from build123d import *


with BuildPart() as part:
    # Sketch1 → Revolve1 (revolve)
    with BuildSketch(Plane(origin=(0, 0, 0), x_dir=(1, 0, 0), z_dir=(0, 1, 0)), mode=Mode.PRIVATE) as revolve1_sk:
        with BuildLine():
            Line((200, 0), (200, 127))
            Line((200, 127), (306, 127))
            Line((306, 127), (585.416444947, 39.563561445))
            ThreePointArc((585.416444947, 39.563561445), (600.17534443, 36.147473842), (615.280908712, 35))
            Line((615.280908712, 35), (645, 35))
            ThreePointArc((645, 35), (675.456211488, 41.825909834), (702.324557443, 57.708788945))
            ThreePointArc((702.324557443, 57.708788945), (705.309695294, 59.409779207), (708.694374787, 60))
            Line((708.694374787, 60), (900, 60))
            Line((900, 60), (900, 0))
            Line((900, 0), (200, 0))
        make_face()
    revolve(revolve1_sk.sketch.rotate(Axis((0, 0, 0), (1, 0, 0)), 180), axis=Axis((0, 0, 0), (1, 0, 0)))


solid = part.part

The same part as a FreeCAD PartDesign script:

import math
import FreeCAD as App
import Part
import Sketcher
Q = App.Units.Quantity

doc = App.newDocument("Part")
body = doc.addObject("PartDesign::Body", "Body")

sketch1 = body.newObject("Sketcher::SketchObject", "Sketch")
sketch1.AttachmentSupport = (doc.getObject("XZ_Plane"), [""])
sketch1.MapMode = "FlatFace"
sketch1.addGeometry(Part.LineSegment(App.Vector(200, -127, 0), App.Vector(200, 0, 0)), False)
sketch1.addGeometry(Part.LineSegment(App.Vector(200, 0, 0), App.Vector(900, 0, 0)), False)
sketch1.addGeometry(Part.LineSegment(App.Vector(900, 0, 0), App.Vector(900, -60, 0)), False)
sketch1.addGeometry(Part.LineSegment(App.Vector(900, -60, 0), App.Vector(709, -60, 0)), False)
sketch1.addGeometry(Part.ArcOfCircle(Part.Circle(App.Vector(709, -50, 0), App.Vector(0, 0, 1), 10), math.radians(-130), math.radians(-90)), False)
sketch1.addGeometry(Part.ArcOfCircle(Part.Circle(App.Vector(639, -135, 0), App.Vector(0, 0, 1), 100), math.radians(50), math.radians(86)), False)
sketch1.addGeometry(Part.LineSegment(App.Vector(645, -35, 0), App.Vector(615, -35, 0)), False)
sketch1.addGeometry(Part.ArcOfCircle(Part.Circle(App.Vector(615, -135, 0), App.Vector(0, 0, 1), 100), math.radians(90), math.radians(107.38)), False)
sketch1.addGeometry(Part.LineSegment(App.Vector(585, -40, 0), App.Vector(306, -127, 0)), False)
sketch1.addGeometry(Part.LineSegment(App.Vector(306, -127, 0), App.Vector(200, -127, 0)), False)
sketch1.addConstraint(Sketcher.Constraint("Coincident", 0, 2, 1, 1))
sketch1.addConstraint(Sketcher.Constraint("Coincident", 1, 2, 2, 1))
sketch1.addConstraint(Sketcher.Constraint("Coincident", 2, 2, 3, 1))
sketch1.addConstraint(Sketcher.Constraint("Tangent", 3, 2, 4, 2))
sketch1.addConstraint(Sketcher.Constraint("Tangent", 4, 1, 5, 1))
sketch1.addConstraint(Sketcher.Constraint("Coincident", 5, 2, 6, 1))
sketch1.addConstraint(Sketcher.Constraint("Tangent", 6, 2, 7, 1))
sketch1.addConstraint(Sketcher.Constraint("Tangent", 7, 2, 8, 1))
sketch1.addConstraint(Sketcher.Constraint("Coincident", 8, 2, 9, 1))
sketch1.addConstraint(Sketcher.Constraint("Coincident", 9, 2, 0, 1))
sketch1.addConstraint(Sketcher.Constraint("Vertical", 0))
sketch1.addConstraint(Sketcher.Constraint("Horizontal", 1))
sketch1.addConstraint(Sketcher.Constraint("Vertical", 2))
sketch1.addConstraint(Sketcher.Constraint("Horizontal", 3))
sketch1.addConstraint(Sketcher.Constraint("Horizontal", 6))
sketch1.addConstraint(Sketcher.Constraint("Horizontal", 9))
sketch1.addConstraint(Sketcher.Constraint("Equal", 5, 7))
sketch1.addConstraint(Sketcher.Constraint("PointOnObject", 0, 2, -1))
sketch1.addConstraint(Sketcher.Constraint("Radius", 4, Q("10 mm")))
sketch1.addConstraint(Sketcher.Constraint("Radius", 5, Q("100 mm")))
sketch1.addConstraint(Sketcher.Constraint("DistanceX", 1, 1, 1, 2, Q("700 mm")))
sketch1.addConstraint(Sketcher.Constraint("DistanceX", 9, 2, 9, 1, Q("106 mm")))
sketch1.addConstraint(Sketcher.Constraint("DistanceY", 0, 1, 0, 2, Q("127 mm")))
sketch1.addConstraint(Sketcher.Constraint("DistanceY", 2, 2, 2, 1, Q("60 mm")))
sketch1.addConstraint(Sketcher.Constraint("DistanceY", 7, 3, -1, 1, Q("135 mm")))
sketch1.addConstraint(Sketcher.Constraint("DistanceX", -1, 1, 0, 2, Q("200 mm")))
sketch1.addConstraint(Sketcher.Constraint("DistanceX", -1, 1, 5, 2, Q("645 mm")))
sketch1.addConstraint(Sketcher.Constraint("DistanceX", 6, 2, 6, 1, Q("29.719091 mm")))
sketch1.addConstraint(Sketcher.Constraint("DistanceX", 3, 2, 3, 1, Q("191.305625 mm")))
revolution = body.newObject("PartDesign::Revolution", "Revolution")
revolution.Profile = sketch1
revolution.ReferenceAxis = (sketch1, ["H_Axis"])
revolution.Angle = 360

doc.recompute()
